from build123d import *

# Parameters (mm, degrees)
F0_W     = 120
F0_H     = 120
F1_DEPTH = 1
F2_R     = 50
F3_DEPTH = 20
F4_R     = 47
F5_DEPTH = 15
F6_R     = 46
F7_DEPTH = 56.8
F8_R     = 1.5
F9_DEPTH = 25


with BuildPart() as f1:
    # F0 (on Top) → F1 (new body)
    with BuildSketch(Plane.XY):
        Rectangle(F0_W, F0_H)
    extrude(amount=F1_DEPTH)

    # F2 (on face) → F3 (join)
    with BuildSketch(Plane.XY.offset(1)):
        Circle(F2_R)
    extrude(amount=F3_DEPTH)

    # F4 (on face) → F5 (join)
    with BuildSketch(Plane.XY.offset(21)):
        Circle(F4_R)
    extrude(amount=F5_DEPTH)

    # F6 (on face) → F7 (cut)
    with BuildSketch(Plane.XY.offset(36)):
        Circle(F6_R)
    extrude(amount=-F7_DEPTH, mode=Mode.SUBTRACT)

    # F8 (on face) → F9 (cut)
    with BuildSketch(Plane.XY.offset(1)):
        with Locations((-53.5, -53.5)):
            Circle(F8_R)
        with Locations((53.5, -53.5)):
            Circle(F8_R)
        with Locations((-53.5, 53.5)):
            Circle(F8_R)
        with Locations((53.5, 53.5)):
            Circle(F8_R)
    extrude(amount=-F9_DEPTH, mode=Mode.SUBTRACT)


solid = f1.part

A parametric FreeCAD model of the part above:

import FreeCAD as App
import Part
import Sketcher


def add_polygon(sketch, points):
    """Adds a closed chain of lines whose ends are joined by coincident constraints."""
    first, n = sketch.GeometryCount, len(points)
    for a, b in zip(points, points[1:] + points[:1]):
        sketch.addGeometry(Part.LineSegment(App.Vector(*a, 0), App.Vector(*b, 0)), False)
    for i in range(n):
        sketch.addConstraint(Sketcher.Constraint("Coincident", first + i, 2, first + (i + 1) % n, 1))

doc = App.newDocument("Part")
params = doc.addObject("Spreadsheet::Sheet", "Params")
for row, (alias, value) in enumerate([
    ("sketch1_width", "120 mm"),
    ("pad1_length", "1 mm"),
    ("sketch2_diameter", "100 mm"),
    ("pad2_length", "20 mm"),
    ("sketch3_diameter", "94 mm"),
    ("pad3_length", "15 mm"),
    ("sketch4_diameter", "92 mm"),
    ("pocket1_length", "56.8 mm"),
    ("sketch5_diameter", "3 mm"),
    ("pocket2_length", "25 mm"),
], start=1):
    params.set(f"A{row}", alias)
    params.set(f"B{row}", "=" + value)
    params.setAlias(f"B{row}", alias)

body = doc.addObject("PartDesign::Body", "Body")

sketch1 = body.newObject("Sketcher::SketchObject", "Sketch")
sketch1.AttachmentSupport = (doc.getObject("XY_Plane"), [""])
sketch1.MapMode = "FlatFace"
add_polygon(sketch1, [(-60, 60), (-60, -60), (60, -60), (60, 60)])
sketch1.addConstraint([
    Sketcher.Constraint("Vertical", 0),
    Sketcher.Constraint("Horizontal", 1),
    Sketcher.Constraint("Vertical", 2),
    Sketcher.Constraint("Horizontal", 3),
    Sketcher.Constraint("Symmetric", 0, 2, 2, 2, -1, 1),
    Sketcher.Constraint("Equal", 3, 0),
    Sketcher.Constraint("DistanceX", 1, 1, 1, 2, 120.0),
])
sketch1.setExpression("Constraints[10]", "Params.sketch1_width")
pad1 = body.newObject("PartDesign::Pad", "Pad")
pad1.Profile = sketch1
pad1.setExpression("Length", "Params.pad1_length")

sketch2 = body.newObject("Sketcher::SketchObject", "Sketch001")
sketch2.AttachmentSupport = (doc.getObject("XY_Plane"), [""])
sketch2.MapMode = "FlatFace"
sketch2.AttachmentOffset = App.Placement(App.Vector(0, 0, 1), App.Rotation())
sketch2.addGeometry(Part.Circle(App.Vector(0, 0, 0), App.Vector(0, 0, 1), 50), False)
sketch2.addConstraint([
    Sketcher.Constraint("Coincident", 0, 3, -1, 1),
    Sketcher.Constraint("Diameter", 0, 100.0),
])
sketch2.setExpression("Constraints[1]", "Params.sketch2_diameter")
pad2 = body.newObject("PartDesign::Pad", "Pad001")
pad2.Profile = sketch2
pad2.setExpression("Length", "Params.pad2_length")

sketch3 = body.newObject("Sketcher::SketchObject", "Sketch002")
sketch3.AttachmentSupport = (doc.getObject("XY_Plane"), [""])
sketch3.MapMode = "FlatFace"
sketch3.AttachmentOffset = App.Placement(App.Vector(0, 0, 21), App.Rotation())
sketch3.addGeometry(Part.Circle(App.Vector(0, 0, 0), App.Vector(0, 0, 1), 47), False)
sketch3.addConstraint([
    Sketcher.Constraint("Coincident", 0, 3, -1, 1),
    Sketcher.Constraint("Diameter", 0, 94.0),
])
sketch3.setExpression("Constraints[1]", "Params.sketch3_diameter")
pad3 = body.newObject("PartDesign::Pad", "Pad002")
pad3.Profile = sketch3
pad3.setExpression("Length", "Params.pad3_length")

sketch4 = body.newObject("Sketcher::SketchObject", "Sketch003")
sketch4.AttachmentSupport = (doc.getObject("XY_Plane"), [""])
sketch4.MapMode = "FlatFace"
sketch4.AttachmentOffset = App.Placement(App.Vector(0, 0, 36), App.Rotation())
sketch4.addGeometry(Part.Circle(App.Vector(0, 0, 0), App.Vector(0, 0, 1), 46), False)
sketch4.addConstraint([
    Sketcher.Constraint("Coincident", 0, 3, -1, 1),
    Sketcher.Constraint("Diameter", 0, 92.0),
])
sketch4.setExpression("Constraints[1]", "Params.sketch4_diameter")
pocket1 = body.newObject("PartDesign::Pocket", "Pocket")
pocket1.Profile = sketch4
pocket1.setExpression("Length", "Params.pocket1_length")

sketch5 = body.newObject("Sketcher::SketchObject", "Sketch004")
sketch5.AttachmentSupport = (doc.getObject("XY_Plane"), [""])
sketch5.MapMode = "FlatFace"
sketch5.AttachmentOffset = App.Placement(App.Vector(0, 0, 1), App.Rotation())
sketch5.addGeometry([
    Part.Circle(App.Vector(-53.5, -53.5, 0), App.Vector(0, 0, 1), 1.5),
    Part.Circle(App.Vector(53.5, -53.5, 0), App.Vector(0, 0, 1), 1.5),
    Part.Circle(App.Vector(-53.5, 53.5, 0), App.Vector(0, 0, 1), 1.5),
    Part.Circle(App.Vector(53.5, 53.5, 0), App.Vector(0, 0, 1), 1.5),
], False)
sketch5.addConstraint([
    Sketcher.Constraint("Equal", 0, 1),
    Sketcher.Constraint("Equal", 1, 2),
    Sketcher.Constraint("Equal", 2, 3),
    Sketcher.Constraint("Symmetric", 1, 3, 2, 3, -1, 1),
    Sketcher.Constraint("Symmetric", 0, 3, 3, 3, -1, 1),
    Sketcher.Constraint("Symmetric", 0, 3, 1, 3, -2),
    Sketcher.Constraint("Diameter", 0, 3.0),
    Sketcher.Constraint("DistanceX", 0, 3, 1, 3, 107.0),
    Sketcher.Constraint("DistanceY", 0, 3, 2, 3, 107.0),
])
sketch5.setExpression("Constraints[6]", "Params.sketch5_diameter")
pocket2 = body.newObject("PartDesign::Pocket", "Pocket001")
pocket2.Profile = sketch5
pocket2.setExpression("Length", "Params.pocket2_length")

doc.recompute()
